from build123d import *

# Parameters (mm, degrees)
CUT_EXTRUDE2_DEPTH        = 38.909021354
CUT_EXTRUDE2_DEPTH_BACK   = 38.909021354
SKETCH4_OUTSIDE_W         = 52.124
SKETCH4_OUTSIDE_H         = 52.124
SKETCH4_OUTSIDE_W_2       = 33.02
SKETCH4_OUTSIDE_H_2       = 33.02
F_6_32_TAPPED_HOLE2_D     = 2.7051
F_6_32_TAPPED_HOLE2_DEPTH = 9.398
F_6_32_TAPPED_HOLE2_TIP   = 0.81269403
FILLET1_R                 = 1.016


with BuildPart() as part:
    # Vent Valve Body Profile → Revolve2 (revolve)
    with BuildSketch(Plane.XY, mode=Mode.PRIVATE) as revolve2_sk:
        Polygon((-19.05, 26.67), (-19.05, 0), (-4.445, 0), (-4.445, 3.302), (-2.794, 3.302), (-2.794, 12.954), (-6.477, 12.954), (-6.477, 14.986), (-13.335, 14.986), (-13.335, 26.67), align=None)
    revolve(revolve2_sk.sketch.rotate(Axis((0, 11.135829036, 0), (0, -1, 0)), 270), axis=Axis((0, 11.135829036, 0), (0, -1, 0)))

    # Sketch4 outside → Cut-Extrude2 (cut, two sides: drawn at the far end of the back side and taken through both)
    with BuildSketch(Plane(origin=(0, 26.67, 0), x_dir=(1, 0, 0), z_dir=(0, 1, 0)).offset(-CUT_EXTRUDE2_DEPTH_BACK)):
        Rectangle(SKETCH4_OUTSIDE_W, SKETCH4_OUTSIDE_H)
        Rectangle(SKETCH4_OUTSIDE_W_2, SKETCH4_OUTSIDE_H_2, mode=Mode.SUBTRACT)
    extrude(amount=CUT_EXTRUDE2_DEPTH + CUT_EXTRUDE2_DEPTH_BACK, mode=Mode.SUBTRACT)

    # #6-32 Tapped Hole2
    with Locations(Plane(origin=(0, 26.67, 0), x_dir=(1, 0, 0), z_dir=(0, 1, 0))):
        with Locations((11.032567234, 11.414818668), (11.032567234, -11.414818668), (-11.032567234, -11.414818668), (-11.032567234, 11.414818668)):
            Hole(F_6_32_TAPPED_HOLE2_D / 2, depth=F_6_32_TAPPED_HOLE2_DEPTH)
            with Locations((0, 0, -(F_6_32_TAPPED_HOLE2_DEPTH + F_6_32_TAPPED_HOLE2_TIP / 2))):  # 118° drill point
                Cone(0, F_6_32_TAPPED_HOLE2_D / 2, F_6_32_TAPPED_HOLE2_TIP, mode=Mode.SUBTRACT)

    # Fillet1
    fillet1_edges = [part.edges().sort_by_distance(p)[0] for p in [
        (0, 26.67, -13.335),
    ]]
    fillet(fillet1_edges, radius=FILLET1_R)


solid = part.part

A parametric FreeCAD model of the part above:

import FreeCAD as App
import Part
import Sketcher

V = App.Vector
Q = App.Units.Quantity


def edges_at(feature, points):
    """Names of the edges that pass closest to the given points."""
    edges = feature.Shape.Edges
    near = lambda p: min(range(len(edges)), key=lambda i: edges[i].distToShape(Part.Vertex(*p))[0])
    return sorted({f"Edge{near(p) + 1}" for p in points})


def add_polygon(sketch, points):
    """Adds a closed chain of lines whose ends are joined by coincident constraints."""
    first, n = sketch.GeometryCount, len(points)
    for a, b in zip(points, points[1:] + points[:1]):
        sketch.addGeometry(Part.LineSegment(App.Vector(*a, 0), App.Vector(*b, 0)), False)
    for i in range(n):
        sketch.addConstraint(Sketcher.Constraint("Coincident", first + i, 2, first + (i + 1) % n, 1))

doc = App.newDocument("Part")
body = doc.addObject("PartDesign::Body", "Body")

sketch1 = body.newObject("Sketcher::SketchObject", "Sketch")
sketch1.AttachmentSupport = (doc.getObject("XY_Plane"), [""])
sketch1.MapMode = "FlatFace"
add_polygon(sketch1, [(-19.05, 26.67), (-19.05, 0), (-4.445, 0), (-4.445, 3.302), (-2.794, 3.302), (-2.794, 12.954), (-6.477, 12.954), (-6.477, 14.986), (-13.335, 14.986), (-13.335, 26.67)])
sketch1.addConstraint(Sketcher.Constraint("Vertical", 0))
sketch1.addConstraint(Sketcher.Constraint("Horizontal", 1))
sketch1.addConstraint(Sketcher.Constraint("Vertical", 2))
sketch1.addConstraint(Sketcher.Constraint("Horizontal", 3))
sketch1.addConstraint(Sketcher.Constraint("Vertical", 4))
sketch1.addConstraint(Sketcher.Constraint("Horizontal", 5))
sketch1.addConstraint(Sketcher.Constraint("Vertical", 6))
sketch1.addConstraint(Sketcher.Constraint("Horizontal", 7))
sketch1.addConstraint(Sketcher.Constraint("Vertical", 8))
sketch1.addConstraint(Sketcher.Constraint("Horizontal", 9))
sketch1.addConstraint(Sketcher.Constraint("PointOnObject", 0, 2, -1))
sketch1.addConstraint(Sketcher.Constraint("DistanceX", 7, 2, 7, 1, Q("0.27 in")))
sketch1.addConstraint(Sketcher.Constraint("DistanceY", 0, 2, 0, 1, Q("1.05 in")))
sketch1.addConstraint(Sketcher.Constraint("DistanceY", 2, 1, 2, 2, Q("0.13 in")))
sketch1.addConstraint(Sketcher.Constraint("DistanceY", 4, 1, 4, 2, Q("0.38 in")))
sketch1.addConstraint(Sketcher.Constraint("DistanceY", 6, 1, 6, 2, Q("0.08 in")))
sketch1.addConstraint(Sketcher.Constraint("DistanceX", 1, 1, 1, 2, Q("0.575 in")))
sketch1.addConstraint(Sketcher.Constraint("DistanceX", 3, 1, 3, 2, Q("0.065 in")))
sketch1.addConstraint(Sketcher.Constraint("DistanceX", 5, 2, 5, 1, Q("0.145 in")))
sketch1.addConstraint(Sketcher.Constraint("DistanceX", 0, 2, -1, 1, Q("0.75 in")))
revolution = body.newObject("PartDesign::Revolution", "Revolution")
revolution.Profile = sketch1
revolution.ReferenceAxis = (sketch1, ["V_Axis"])
revolution.Angle = 360

sketch2 = body.newObject("Sketcher::SketchObject", "Sketch001")
sketch2.AttachmentSupport = (doc.getObject("XZ_Plane"), [""])
sketch2.MapMode = "FlatFace"
sketch2.AttachmentOffset = App.Placement(V(0, 0, -1.05 * 25.4), App.Rotation())
add_polygon(sketch2, [(-26.062, -26.062), (-26.062, 26.062), (26.062, 26.062), (26.062, -26.062)])
add_polygon(sketch2, [(16.51, 16.51), (-16.51, 16.51), (-16.51, -16.51), (16.51, -16.51)])
sketch2.addConstraint(Sketcher.Constraint("Vertical", 0))
sketch2.addConstraint(Sketcher.Constraint("Horizontal", 1))
sketch2.addConstraint(Sketcher.Constraint("Vertical", 2))
sketch2.addConstraint(Sketcher.Constraint("Horizontal", 3))
sketch2.addConstraint(Sketcher.Constraint("Horizontal", 4))
sketch2.addConstraint(Sketcher.Constraint("Vertical", 5))
sketch2.addConstraint(Sketcher.Constraint("Horizontal", 6))
sketch2.addConstraint(Sketcher.Constraint("Vertical", 7))
sketch2.addConstraint(Sketcher.Constraint("Symmetric", 0, 2, 2, 2, -1, 1))
sketch2.addConstraint(Sketcher.Constraint("Symmetric", 4, 2, 6, 2, -1, 1))
sketch2.addConstraint(Sketcher.Constraint("Equal", 3, 0))
sketch2.addConstraint(Sketcher.Constraint("Equal", 6, 5))
sketch2.addConstraint(Sketcher.Constraint("DistanceX", 4, 2, 4, 1, Q("1.3 in")))
sketch2.addConstraint(Sketcher.Constraint("DistanceX", 1, 1, 1, 2, 52.124))
pocket1 = body.newObject("PartDesign::Pocket", "Pocket")
pocket1.Profile = sketch2
pocket1.Type = "ThroughAll"
pocket1.Midplane = True

sketch3 = body.newObject("Sketcher::SketchObject", "Sketch002")
sketch3.AttachmentSupport = (doc.getObject("XZ_Plane"), [""])
sketch3.MapMode = "FlatFace"
sketch3.AttachmentOffset = App.Placement(V(0, 0, -1.05 * 25.4), App.Rotation())
sketch3.addGeometry(Part.Circle(V(11.032567, -11.414819, 0), V(0, 0, 1), 1.35255), False)
sketch3.addGeometry(Part.Circle(V(11.032567, 11.414819, 0), V(0, 0, 1), 1.35255), False)
sketch3.addGeometry(Part.Circle(V(-11.032567, 11.414819, 0), V(0, 0, 1), 1.35255), False)
sketch3.addGeometry(Part.Circle(V(-11.032567, -11.414819, 0), V(0, 0, 1), 1.35255), False)
sketch3.addConstraint(Sketcher.Constraint("Equal", 0, 1))
sketch3.addConstraint(Sketcher.Constraint("Equal", 1, 2))
sketch3.addConstraint(Sketcher.Constraint("Equal", 2, 3))
sketch3.addConstraint(Sketcher.Constraint("Symmetric", 0, 3, 2, 3, -1, 1))
sketch3.addConstraint(Sketcher.Constraint("Symmetric", 1, 3, 3, 3, -1, 1))
sketch3.addConstraint(Sketcher.Constraint("Symmetric", 1, 3, 2, 3, -2))
sketch3.addConstraint(Sketcher.Constraint("Diameter", 0, Q("0.1065 in")))
sketch3.addConstraint(Sketcher.Constraint("DistanceY", 0, 3, -1, 1, 11.414819))
sketch3.addConstraint(Sketcher.Constraint("DistanceX", -1, 1, 0, 3, 11.032567))
doc.recompute()
hole = body.newObject("PartDesign::Hole", "Hole")
hole.Profile = sketch3
hole.ThreadType = "None"
hole.Diameter = Q("0.1065 in")
hole.DepthType = "Dimension"
hole.Depth = Q("0.37 in")
hole.DrillPoint = "Angled"
hole.DrillPointAngle = 118
hole.Reversed = True
doc.recompute()

fillet = body.newObject("PartDesign::Fillet", "Fillet")
fillet.Base = (hole, edges_at(hole, [(0, 26.67, -13.335)]))
fillet.Radius = Q("0.04 in")

doc.recompute()
